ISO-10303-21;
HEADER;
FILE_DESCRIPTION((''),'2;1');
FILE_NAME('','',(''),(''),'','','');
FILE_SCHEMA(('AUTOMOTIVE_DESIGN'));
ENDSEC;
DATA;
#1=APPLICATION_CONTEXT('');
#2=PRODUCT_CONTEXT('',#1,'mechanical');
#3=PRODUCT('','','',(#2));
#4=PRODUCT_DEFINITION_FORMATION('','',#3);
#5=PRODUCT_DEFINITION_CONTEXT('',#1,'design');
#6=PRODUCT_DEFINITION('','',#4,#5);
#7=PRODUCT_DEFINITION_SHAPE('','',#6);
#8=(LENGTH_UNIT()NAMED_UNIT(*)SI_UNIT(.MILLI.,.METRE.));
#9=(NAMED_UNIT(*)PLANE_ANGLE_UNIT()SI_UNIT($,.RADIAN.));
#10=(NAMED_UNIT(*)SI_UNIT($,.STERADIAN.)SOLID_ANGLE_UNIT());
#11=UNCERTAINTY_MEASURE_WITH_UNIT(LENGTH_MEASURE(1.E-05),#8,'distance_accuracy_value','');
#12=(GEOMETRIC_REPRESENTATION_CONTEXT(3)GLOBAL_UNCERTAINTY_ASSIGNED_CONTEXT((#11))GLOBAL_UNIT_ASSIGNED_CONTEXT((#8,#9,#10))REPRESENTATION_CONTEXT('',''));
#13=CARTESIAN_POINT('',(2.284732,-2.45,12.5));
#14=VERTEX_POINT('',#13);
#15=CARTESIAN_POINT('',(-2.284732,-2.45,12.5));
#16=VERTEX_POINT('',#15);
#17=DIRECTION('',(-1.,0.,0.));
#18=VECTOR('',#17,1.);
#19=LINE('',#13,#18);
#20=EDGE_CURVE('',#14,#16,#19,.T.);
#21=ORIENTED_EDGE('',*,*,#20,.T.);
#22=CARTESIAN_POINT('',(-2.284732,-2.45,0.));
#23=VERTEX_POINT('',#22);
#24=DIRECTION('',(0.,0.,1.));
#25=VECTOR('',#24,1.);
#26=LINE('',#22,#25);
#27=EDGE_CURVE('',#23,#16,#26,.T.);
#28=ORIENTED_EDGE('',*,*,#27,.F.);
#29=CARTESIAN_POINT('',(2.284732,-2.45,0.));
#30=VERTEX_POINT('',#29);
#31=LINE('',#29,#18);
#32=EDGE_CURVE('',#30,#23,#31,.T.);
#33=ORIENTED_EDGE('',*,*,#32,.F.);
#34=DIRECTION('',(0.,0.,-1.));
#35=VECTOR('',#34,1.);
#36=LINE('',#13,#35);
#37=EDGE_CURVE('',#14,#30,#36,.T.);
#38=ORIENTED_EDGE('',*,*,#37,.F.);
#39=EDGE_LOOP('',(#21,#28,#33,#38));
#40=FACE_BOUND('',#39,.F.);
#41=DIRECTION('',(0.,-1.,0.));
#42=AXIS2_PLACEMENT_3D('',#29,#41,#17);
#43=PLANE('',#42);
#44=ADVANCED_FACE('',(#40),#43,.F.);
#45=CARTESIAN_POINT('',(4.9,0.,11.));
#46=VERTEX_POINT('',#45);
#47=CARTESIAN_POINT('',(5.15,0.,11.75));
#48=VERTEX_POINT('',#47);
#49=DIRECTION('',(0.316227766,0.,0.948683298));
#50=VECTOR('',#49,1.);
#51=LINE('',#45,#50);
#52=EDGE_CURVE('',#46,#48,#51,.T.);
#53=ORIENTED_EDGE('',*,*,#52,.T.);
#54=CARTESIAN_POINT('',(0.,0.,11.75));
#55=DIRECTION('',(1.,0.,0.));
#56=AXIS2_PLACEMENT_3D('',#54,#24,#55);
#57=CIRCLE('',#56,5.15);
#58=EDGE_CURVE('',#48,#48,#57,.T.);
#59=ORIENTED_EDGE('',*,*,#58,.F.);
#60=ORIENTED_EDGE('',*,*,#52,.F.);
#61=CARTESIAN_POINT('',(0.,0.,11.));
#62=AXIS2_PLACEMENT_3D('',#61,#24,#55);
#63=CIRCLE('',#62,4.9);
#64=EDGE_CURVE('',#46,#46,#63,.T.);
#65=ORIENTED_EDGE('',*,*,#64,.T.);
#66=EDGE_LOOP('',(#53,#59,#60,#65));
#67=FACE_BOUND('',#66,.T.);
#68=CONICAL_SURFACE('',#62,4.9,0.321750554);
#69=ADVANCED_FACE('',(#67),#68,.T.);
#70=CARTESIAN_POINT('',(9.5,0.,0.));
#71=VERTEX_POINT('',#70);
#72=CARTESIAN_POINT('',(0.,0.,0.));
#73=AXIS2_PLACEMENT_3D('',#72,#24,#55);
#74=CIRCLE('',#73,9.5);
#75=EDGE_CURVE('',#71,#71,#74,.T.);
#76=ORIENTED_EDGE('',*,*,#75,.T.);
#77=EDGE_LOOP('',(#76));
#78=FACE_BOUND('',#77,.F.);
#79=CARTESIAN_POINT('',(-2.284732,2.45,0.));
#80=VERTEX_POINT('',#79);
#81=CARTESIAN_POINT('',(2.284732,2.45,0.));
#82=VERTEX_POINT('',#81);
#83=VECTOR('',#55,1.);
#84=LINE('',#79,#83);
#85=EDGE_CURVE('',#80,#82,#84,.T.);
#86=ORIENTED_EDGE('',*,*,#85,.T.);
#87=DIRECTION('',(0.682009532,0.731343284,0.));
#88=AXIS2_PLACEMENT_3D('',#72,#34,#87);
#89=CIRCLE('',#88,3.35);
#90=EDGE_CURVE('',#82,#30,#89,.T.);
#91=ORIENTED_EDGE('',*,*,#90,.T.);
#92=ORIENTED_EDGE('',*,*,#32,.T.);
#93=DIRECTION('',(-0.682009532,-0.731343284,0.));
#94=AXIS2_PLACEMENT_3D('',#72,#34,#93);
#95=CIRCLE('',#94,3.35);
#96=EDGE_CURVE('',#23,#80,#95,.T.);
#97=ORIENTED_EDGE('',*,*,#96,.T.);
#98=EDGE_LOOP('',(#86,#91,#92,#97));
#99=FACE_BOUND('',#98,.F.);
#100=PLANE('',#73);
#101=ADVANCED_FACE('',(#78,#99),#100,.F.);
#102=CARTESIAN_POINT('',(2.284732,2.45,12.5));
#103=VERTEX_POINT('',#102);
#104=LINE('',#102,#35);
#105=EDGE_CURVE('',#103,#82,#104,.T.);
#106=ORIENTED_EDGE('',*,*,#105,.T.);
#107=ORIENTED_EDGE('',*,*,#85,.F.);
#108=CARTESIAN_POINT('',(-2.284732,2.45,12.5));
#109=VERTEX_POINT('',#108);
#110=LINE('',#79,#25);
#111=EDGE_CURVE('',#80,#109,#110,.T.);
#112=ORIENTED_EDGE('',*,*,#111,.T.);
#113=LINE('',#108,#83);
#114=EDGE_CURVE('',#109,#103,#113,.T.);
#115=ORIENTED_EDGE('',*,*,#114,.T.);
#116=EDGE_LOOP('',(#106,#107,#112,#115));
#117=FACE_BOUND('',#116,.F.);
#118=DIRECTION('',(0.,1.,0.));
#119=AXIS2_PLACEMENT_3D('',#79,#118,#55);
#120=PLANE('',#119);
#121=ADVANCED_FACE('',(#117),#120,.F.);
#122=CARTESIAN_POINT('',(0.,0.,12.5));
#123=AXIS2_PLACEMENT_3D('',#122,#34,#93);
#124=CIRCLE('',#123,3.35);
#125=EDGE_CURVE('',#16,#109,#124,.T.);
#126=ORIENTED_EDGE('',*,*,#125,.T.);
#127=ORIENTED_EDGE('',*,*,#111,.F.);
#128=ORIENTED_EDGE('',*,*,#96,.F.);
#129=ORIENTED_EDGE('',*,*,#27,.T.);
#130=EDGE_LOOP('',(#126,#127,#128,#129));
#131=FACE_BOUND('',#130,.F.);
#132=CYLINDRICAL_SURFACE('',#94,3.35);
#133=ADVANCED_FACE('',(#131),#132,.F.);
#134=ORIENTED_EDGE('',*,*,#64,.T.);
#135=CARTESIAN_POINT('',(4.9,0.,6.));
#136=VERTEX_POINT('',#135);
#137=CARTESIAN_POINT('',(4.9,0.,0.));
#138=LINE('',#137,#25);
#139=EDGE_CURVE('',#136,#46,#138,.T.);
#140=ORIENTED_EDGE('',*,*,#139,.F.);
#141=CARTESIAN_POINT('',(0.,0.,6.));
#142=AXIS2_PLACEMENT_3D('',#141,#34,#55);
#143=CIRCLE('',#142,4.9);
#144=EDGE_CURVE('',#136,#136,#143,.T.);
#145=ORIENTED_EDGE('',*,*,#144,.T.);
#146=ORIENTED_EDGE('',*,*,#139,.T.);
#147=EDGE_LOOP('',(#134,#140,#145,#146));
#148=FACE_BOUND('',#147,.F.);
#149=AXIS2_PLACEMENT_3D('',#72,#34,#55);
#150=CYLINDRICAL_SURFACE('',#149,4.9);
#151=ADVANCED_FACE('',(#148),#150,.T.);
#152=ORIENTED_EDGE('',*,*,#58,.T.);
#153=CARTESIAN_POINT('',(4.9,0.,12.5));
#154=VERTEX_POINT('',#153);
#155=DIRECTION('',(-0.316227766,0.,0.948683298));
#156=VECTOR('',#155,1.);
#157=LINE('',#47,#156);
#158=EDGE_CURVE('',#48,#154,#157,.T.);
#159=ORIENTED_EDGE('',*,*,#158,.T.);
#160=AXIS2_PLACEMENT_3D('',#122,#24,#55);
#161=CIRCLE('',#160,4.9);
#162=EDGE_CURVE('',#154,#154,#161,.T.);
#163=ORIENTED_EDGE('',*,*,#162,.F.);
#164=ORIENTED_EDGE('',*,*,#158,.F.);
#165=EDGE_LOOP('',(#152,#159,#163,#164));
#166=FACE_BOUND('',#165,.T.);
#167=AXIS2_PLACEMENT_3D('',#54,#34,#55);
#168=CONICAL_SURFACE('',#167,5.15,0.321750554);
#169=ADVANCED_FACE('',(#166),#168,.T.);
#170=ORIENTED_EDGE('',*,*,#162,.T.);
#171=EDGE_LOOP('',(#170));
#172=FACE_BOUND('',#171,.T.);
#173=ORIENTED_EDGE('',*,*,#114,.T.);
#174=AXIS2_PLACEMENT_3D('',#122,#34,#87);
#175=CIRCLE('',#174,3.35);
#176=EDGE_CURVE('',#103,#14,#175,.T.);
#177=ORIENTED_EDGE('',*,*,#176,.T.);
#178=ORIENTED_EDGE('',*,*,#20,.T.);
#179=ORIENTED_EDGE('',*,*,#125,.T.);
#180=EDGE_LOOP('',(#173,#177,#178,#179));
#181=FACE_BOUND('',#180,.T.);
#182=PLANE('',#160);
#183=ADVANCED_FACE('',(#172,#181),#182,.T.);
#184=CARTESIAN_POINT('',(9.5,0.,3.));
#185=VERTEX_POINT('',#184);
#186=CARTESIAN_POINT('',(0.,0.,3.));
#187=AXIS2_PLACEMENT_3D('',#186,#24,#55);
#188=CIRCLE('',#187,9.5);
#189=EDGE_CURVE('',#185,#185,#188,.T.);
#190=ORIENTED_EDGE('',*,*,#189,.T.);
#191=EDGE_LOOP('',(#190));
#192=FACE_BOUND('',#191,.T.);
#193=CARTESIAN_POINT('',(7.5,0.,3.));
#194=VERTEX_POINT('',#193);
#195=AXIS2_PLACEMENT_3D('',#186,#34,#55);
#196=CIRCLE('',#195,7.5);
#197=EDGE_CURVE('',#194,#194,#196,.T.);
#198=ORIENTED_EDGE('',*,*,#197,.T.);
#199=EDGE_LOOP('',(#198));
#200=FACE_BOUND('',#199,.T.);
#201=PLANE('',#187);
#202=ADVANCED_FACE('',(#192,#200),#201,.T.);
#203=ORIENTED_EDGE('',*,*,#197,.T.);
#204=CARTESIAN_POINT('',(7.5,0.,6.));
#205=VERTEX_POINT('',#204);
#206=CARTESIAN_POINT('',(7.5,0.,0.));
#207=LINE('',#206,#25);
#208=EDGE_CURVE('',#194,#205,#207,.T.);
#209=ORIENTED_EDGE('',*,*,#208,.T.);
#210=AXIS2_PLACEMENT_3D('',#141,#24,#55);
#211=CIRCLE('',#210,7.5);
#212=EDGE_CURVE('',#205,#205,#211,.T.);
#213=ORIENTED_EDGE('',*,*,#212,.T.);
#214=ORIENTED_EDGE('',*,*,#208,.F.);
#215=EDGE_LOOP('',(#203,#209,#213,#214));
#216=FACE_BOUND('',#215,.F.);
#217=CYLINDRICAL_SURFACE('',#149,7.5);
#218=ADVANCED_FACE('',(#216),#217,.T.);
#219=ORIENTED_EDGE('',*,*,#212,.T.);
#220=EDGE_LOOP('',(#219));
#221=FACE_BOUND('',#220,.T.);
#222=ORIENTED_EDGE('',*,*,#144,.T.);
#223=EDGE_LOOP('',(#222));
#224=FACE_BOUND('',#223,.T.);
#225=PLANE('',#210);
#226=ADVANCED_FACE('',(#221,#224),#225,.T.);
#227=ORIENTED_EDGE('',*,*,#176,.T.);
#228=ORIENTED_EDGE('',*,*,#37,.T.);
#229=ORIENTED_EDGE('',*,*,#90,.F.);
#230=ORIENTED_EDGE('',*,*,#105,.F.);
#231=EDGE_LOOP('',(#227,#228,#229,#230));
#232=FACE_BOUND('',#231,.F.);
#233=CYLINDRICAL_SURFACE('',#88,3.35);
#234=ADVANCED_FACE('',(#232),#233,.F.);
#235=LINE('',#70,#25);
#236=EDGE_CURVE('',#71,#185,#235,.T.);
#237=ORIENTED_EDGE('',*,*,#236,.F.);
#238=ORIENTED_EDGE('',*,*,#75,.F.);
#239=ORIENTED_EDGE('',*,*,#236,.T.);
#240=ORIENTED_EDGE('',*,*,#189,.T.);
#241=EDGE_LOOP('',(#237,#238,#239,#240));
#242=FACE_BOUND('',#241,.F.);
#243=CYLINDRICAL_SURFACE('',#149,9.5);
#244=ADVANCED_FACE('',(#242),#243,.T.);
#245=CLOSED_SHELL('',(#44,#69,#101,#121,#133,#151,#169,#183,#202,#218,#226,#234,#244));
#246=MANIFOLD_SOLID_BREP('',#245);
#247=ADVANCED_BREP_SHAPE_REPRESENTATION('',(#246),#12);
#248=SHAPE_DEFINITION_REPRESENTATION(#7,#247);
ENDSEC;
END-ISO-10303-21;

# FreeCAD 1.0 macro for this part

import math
import FreeCAD as App
import Part
import Sketcher
from FreeCAD import Vector


def add_polygon(sketch, points):
    """Adds a closed chain of lines whose ends are joined by coincident constraints."""
    first, n = sketch.GeometryCount, len(points)
    for a, b in zip(points, points[1:] + points[:1]):
        sketch.addGeometry(Part.LineSegment(App.Vector(*a, 0), App.Vector(*b, 0)), False)
    for i in range(n):
        sketch.addConstraint(Sketcher.Constraint("Coincident", first + i, 2, first + (i + 1) % n, 1))

doc = App.newDocument("Part")
body = doc.addObject("PartDesign::Body", "Body")

sketch1 = body.newObject("Sketcher::SketchObject", "Sketch")
sketch1.AttachmentSupport = (doc.getObject("XY_Plane"), [""])
sketch1.MapMode = "FlatFace"
sketch1.addGeometry(Part.Circle(Vector(0, 0, 0), Vector(0, 0, 1), 9.5), False)
sketch1.addGeometry(Part.LineSegment(Vector(2.284732, -2.45, 0), Vector(-2.284732, -2.45, 0)), False)
sketch1.addGeometry(Part.ArcOfCircle(Part.Circle(Vector(0, 0, 0), Vector(0, 0, 1), 3.35), math.radians(133.000875), math.radians(226.999125)), False)
sketch1.addGeometry(Part.LineSegment(Vector(-2.284732, 2.45, 0), Vector(2.284732, 2.45, 0)), False)
sketch1.addGeometry(Part.ArcOfCircle(Part.Circle(Vector(0, 0, 0), Vector(0, 0, 1), 3.35), math.radians(-46.999125), math.radians(46.999125)), False)
sketch1.addConstraint(Sketcher.Constraint("Coincident", 1, 2, 2, 2))
sketch1.addConstraint(Sketcher.Constraint("Coincident", 2, 1, 3, 1))
sketch1.addConstraint(Sketcher.Constraint("Coincident", 3, 2, 4, 2))
sketch1.addConstraint(Sketcher.Constraint("Coincident", 4, 1, 1, 1))
sketch1.addConstraint(Sketcher.Constraint("Horizontal", 1))
sketch1.addConstraint(Sketcher.Constraint("Horizontal", 3))
sketch1.addConstraint(Sketcher.Constraint("Coincident", 0, 3, -1, 1))
sketch1.addConstraint(Sketcher.Constraint("Coincident", 2, 3, -1, 1))
sketch1.addConstraint(Sketcher.Constraint("Coincident", 4, 3, -1, 1))
sketch1.addConstraint(Sketcher.Constraint("Equal", 2, 4))
sketch1.addConstraint(Sketcher.Constraint("Vertical", 1, 2, 2, 1))
sketch1.addConstraint(Sketcher.Constraint("Diameter", 0, 19.0))
sketch1.addConstraint(Sketcher.Constraint("Radius", 2, 3.35))
sketch1.addConstraint(Sketcher.Constraint("DistanceY", 1, 2, 2, 1, 4.9))
pad1 = body.newObject("PartDesign::Pad", "Pad")
pad1.Profile = sketch1
pad1.Length = 3

sketch2 = body.newObject("Sketcher::SketchObject", "Sketch001")
sketch2.AttachmentSupport = (doc.getObject("XY_Plane"), [""])
sketch2.MapMode = "FlatFace"
sketch2.addGeometry(Part.Circle(Vector(0, 0, 0), Vector(0, 0, 1), 7.5), False)
sketch2.addGeometry(Part.LineSegment(Vector(2.284732, -2.45, 0), Vector(-2.284732, -2.45, 0)), False)
sketch2.addGeometry(Part.ArcOfCircle(Part.Circle(Vector(0, 0, 0), Vector(0, 0, 1), 3.35), math.radians(133.000875), math.radians(226.999125)), False)
sketch2.addGeometry(Part.LineSegment(Vector(-2.284732, 2.45, 0), Vector(2.284732, 2.45, 0)), False)
sketch2.addGeometry(Part.ArcOfCircle(Part.Circle(Vector(0, 0, 0), Vector(0, 0, 1), 3.35), math.radians(-46.999125), math.radians(46.999125)), False)
sketch2.addConstraint(Sketcher.Constraint("Coincident", 1, 2, 2, 2))
sketch2.addConstraint(Sketcher.Constraint("Coincident", 2, 1, 3, 1))
sketch2.addConstraint(Sketcher.Constraint("Coincident", 3, 2, 4, 2))
sketch2.addConstraint(Sketcher.Constraint("Coincident", 4, 1, 1, 1))
sketch2.addConstraint(Sketcher.Constraint("Horizontal", 1))
sketch2.addConstraint(Sketcher.Constraint("Horizontal", 3))
sketch2.addConstraint(Sketcher.Constraint("Coincident", 0, 3, -1, 1))
sketch2.addConstraint(Sketcher.Constraint("Coincident", 2, 3, -1, 1))
sketch2.addConstraint(Sketcher.Constraint("Coincident", 4, 3, -1, 1))
sketch2.addConstraint(Sketcher.Constraint("Equal", 2, 4))
sketch2.addConstraint(Sketcher.Constraint("Vertical", 1, 2, 2, 1))
sketch2.addConstraint(Sketcher.Constraint("Diameter", 0, 15.0))
sketch2.addConstraint(Sketcher.Constraint("Radius", 2, 3.35))
sketch2.addConstraint(Sketcher.Constraint("DistanceY", 1, 2, 2, 1, 4.9))
pad2 = body.newObject("PartDesign::Pad", "Pad001")
pad2.Profile = sketch2
pad2.Length = 6

sketch3 = body.newObject("Sketcher::SketchObject", "Sketch002")
sketch3.AttachmentSupport = (doc.getObject("XY_Plane"), [""])
sketch3.MapMode = "FlatFace"
sketch3.addGeometry(Part.Circle(Vector(0, 0, 0), Vector(0, 0, 1), 4.9), False)
sketch3.addGeometry(Part.LineSegment(Vector(2.284732, -2.45, 0), Vector(-2.284732, -2.45, 0)), False)
sketch3.addGeometry(Part.ArcOfCircle(Part.Circle(Vector(0, 0, 0), Vector(0, 0, 1), 3.35), math.radians(133.000875), math.radians(226.999125)), False)
sketch3.addGeometry(Part.LineSegment(Vector(-2.284732, 2.45, 0), Vector(2.284732, 2.45, 0)), False)
sketch3.addGeometry(Part.ArcOfCircle(Part.Circle(Vector(0, 0, 0), Vector(0, 0, 1), 3.35), math.radians(-46.999125), math.radians(46.999125)), False)
sketch3.addConstraint(Sketcher.Constraint("Coincident", 1, 2, 2, 2))
sketch3.addConstraint(Sketcher.Constraint("Coincident", 2, 1, 3, 1))
sketch3.addConstraint(Sketcher.Constraint("Coincident", 3, 2, 4, 2))
sketch3.addConstraint(Sketcher.Constraint("Coincident", 4, 1, 1, 1))
sketch3.addConstraint(Sketcher.Constraint("Horizontal", 1))
sketch3.addConstraint(Sketcher.Constraint("Horizontal", 3))
sketch3.addConstraint(Sketcher.Constraint("Coincident", 0, 3, -1, 1))
sketch3.addConstraint(Sketcher.Constraint("Coincident", 2, 3, -1, 1))
sketch3.addConstraint(Sketcher.Constraint("Coincident", 4, 3, -1, 1))
sketch3.addConstraint(Sketcher.Constraint("Equal", 2, 4))
sketch3.addConstraint(Sketcher.Constraint("Vertical", 1, 2, 2, 1))
sketch3.addConstraint(Sketcher.Constraint("Diameter", 0, 9.8))
sketch3.addConstraint(Sketcher.Constraint("Radius", 2, 3.35))
sketch3.addConstraint(Sketcher.Constraint("DistanceY", 1, 2, 2, 1, 4.9))
pad3 = body.newObject("PartDesign::Pad", "Pad002")
pad3.Profile = sketch3
pad3.Length = 12.5

sketch4 = body.newObject("Sketcher::SketchObject", "Sketch003")
sketch4.AttachmentSupport = (doc.getObject("XZ_Plane"), [""])
sketch4.MapMode = "FlatFace"
add_polygon(sketch4, [(5.15, 11.75), (4.9, 12.5), (4.9, 11)])
sketch4.addConstraint(Sketcher.Constraint("Vertical", 1))
sketch4.addConstraint(Sketcher.Constraint("Equal", 0, 2))
sketch4.addConstraint(Sketcher.Constraint("DistanceY", 1, 2, 1, 1, 1.5))
sketch4.addConstraint(Sketcher.Constraint("DistanceY", -1, 1, 1, 2, 11.0))
sketch4.addConstraint(Sketcher.Constraint("DistanceX", -1, 1, 0, 2, 4.9))
sketch4.addConstraint(Sketcher.Constraint("DistanceX", -1, 1, 2, 2, 5.15))
revolution = body.newObject("PartDesign::Revolution", "Revolution")
revolution.Profile = sketch4
revolution.ReferenceAxis = (sketch4, ["V_Axis"])
revolution.Angle = 360

doc.recompute()
